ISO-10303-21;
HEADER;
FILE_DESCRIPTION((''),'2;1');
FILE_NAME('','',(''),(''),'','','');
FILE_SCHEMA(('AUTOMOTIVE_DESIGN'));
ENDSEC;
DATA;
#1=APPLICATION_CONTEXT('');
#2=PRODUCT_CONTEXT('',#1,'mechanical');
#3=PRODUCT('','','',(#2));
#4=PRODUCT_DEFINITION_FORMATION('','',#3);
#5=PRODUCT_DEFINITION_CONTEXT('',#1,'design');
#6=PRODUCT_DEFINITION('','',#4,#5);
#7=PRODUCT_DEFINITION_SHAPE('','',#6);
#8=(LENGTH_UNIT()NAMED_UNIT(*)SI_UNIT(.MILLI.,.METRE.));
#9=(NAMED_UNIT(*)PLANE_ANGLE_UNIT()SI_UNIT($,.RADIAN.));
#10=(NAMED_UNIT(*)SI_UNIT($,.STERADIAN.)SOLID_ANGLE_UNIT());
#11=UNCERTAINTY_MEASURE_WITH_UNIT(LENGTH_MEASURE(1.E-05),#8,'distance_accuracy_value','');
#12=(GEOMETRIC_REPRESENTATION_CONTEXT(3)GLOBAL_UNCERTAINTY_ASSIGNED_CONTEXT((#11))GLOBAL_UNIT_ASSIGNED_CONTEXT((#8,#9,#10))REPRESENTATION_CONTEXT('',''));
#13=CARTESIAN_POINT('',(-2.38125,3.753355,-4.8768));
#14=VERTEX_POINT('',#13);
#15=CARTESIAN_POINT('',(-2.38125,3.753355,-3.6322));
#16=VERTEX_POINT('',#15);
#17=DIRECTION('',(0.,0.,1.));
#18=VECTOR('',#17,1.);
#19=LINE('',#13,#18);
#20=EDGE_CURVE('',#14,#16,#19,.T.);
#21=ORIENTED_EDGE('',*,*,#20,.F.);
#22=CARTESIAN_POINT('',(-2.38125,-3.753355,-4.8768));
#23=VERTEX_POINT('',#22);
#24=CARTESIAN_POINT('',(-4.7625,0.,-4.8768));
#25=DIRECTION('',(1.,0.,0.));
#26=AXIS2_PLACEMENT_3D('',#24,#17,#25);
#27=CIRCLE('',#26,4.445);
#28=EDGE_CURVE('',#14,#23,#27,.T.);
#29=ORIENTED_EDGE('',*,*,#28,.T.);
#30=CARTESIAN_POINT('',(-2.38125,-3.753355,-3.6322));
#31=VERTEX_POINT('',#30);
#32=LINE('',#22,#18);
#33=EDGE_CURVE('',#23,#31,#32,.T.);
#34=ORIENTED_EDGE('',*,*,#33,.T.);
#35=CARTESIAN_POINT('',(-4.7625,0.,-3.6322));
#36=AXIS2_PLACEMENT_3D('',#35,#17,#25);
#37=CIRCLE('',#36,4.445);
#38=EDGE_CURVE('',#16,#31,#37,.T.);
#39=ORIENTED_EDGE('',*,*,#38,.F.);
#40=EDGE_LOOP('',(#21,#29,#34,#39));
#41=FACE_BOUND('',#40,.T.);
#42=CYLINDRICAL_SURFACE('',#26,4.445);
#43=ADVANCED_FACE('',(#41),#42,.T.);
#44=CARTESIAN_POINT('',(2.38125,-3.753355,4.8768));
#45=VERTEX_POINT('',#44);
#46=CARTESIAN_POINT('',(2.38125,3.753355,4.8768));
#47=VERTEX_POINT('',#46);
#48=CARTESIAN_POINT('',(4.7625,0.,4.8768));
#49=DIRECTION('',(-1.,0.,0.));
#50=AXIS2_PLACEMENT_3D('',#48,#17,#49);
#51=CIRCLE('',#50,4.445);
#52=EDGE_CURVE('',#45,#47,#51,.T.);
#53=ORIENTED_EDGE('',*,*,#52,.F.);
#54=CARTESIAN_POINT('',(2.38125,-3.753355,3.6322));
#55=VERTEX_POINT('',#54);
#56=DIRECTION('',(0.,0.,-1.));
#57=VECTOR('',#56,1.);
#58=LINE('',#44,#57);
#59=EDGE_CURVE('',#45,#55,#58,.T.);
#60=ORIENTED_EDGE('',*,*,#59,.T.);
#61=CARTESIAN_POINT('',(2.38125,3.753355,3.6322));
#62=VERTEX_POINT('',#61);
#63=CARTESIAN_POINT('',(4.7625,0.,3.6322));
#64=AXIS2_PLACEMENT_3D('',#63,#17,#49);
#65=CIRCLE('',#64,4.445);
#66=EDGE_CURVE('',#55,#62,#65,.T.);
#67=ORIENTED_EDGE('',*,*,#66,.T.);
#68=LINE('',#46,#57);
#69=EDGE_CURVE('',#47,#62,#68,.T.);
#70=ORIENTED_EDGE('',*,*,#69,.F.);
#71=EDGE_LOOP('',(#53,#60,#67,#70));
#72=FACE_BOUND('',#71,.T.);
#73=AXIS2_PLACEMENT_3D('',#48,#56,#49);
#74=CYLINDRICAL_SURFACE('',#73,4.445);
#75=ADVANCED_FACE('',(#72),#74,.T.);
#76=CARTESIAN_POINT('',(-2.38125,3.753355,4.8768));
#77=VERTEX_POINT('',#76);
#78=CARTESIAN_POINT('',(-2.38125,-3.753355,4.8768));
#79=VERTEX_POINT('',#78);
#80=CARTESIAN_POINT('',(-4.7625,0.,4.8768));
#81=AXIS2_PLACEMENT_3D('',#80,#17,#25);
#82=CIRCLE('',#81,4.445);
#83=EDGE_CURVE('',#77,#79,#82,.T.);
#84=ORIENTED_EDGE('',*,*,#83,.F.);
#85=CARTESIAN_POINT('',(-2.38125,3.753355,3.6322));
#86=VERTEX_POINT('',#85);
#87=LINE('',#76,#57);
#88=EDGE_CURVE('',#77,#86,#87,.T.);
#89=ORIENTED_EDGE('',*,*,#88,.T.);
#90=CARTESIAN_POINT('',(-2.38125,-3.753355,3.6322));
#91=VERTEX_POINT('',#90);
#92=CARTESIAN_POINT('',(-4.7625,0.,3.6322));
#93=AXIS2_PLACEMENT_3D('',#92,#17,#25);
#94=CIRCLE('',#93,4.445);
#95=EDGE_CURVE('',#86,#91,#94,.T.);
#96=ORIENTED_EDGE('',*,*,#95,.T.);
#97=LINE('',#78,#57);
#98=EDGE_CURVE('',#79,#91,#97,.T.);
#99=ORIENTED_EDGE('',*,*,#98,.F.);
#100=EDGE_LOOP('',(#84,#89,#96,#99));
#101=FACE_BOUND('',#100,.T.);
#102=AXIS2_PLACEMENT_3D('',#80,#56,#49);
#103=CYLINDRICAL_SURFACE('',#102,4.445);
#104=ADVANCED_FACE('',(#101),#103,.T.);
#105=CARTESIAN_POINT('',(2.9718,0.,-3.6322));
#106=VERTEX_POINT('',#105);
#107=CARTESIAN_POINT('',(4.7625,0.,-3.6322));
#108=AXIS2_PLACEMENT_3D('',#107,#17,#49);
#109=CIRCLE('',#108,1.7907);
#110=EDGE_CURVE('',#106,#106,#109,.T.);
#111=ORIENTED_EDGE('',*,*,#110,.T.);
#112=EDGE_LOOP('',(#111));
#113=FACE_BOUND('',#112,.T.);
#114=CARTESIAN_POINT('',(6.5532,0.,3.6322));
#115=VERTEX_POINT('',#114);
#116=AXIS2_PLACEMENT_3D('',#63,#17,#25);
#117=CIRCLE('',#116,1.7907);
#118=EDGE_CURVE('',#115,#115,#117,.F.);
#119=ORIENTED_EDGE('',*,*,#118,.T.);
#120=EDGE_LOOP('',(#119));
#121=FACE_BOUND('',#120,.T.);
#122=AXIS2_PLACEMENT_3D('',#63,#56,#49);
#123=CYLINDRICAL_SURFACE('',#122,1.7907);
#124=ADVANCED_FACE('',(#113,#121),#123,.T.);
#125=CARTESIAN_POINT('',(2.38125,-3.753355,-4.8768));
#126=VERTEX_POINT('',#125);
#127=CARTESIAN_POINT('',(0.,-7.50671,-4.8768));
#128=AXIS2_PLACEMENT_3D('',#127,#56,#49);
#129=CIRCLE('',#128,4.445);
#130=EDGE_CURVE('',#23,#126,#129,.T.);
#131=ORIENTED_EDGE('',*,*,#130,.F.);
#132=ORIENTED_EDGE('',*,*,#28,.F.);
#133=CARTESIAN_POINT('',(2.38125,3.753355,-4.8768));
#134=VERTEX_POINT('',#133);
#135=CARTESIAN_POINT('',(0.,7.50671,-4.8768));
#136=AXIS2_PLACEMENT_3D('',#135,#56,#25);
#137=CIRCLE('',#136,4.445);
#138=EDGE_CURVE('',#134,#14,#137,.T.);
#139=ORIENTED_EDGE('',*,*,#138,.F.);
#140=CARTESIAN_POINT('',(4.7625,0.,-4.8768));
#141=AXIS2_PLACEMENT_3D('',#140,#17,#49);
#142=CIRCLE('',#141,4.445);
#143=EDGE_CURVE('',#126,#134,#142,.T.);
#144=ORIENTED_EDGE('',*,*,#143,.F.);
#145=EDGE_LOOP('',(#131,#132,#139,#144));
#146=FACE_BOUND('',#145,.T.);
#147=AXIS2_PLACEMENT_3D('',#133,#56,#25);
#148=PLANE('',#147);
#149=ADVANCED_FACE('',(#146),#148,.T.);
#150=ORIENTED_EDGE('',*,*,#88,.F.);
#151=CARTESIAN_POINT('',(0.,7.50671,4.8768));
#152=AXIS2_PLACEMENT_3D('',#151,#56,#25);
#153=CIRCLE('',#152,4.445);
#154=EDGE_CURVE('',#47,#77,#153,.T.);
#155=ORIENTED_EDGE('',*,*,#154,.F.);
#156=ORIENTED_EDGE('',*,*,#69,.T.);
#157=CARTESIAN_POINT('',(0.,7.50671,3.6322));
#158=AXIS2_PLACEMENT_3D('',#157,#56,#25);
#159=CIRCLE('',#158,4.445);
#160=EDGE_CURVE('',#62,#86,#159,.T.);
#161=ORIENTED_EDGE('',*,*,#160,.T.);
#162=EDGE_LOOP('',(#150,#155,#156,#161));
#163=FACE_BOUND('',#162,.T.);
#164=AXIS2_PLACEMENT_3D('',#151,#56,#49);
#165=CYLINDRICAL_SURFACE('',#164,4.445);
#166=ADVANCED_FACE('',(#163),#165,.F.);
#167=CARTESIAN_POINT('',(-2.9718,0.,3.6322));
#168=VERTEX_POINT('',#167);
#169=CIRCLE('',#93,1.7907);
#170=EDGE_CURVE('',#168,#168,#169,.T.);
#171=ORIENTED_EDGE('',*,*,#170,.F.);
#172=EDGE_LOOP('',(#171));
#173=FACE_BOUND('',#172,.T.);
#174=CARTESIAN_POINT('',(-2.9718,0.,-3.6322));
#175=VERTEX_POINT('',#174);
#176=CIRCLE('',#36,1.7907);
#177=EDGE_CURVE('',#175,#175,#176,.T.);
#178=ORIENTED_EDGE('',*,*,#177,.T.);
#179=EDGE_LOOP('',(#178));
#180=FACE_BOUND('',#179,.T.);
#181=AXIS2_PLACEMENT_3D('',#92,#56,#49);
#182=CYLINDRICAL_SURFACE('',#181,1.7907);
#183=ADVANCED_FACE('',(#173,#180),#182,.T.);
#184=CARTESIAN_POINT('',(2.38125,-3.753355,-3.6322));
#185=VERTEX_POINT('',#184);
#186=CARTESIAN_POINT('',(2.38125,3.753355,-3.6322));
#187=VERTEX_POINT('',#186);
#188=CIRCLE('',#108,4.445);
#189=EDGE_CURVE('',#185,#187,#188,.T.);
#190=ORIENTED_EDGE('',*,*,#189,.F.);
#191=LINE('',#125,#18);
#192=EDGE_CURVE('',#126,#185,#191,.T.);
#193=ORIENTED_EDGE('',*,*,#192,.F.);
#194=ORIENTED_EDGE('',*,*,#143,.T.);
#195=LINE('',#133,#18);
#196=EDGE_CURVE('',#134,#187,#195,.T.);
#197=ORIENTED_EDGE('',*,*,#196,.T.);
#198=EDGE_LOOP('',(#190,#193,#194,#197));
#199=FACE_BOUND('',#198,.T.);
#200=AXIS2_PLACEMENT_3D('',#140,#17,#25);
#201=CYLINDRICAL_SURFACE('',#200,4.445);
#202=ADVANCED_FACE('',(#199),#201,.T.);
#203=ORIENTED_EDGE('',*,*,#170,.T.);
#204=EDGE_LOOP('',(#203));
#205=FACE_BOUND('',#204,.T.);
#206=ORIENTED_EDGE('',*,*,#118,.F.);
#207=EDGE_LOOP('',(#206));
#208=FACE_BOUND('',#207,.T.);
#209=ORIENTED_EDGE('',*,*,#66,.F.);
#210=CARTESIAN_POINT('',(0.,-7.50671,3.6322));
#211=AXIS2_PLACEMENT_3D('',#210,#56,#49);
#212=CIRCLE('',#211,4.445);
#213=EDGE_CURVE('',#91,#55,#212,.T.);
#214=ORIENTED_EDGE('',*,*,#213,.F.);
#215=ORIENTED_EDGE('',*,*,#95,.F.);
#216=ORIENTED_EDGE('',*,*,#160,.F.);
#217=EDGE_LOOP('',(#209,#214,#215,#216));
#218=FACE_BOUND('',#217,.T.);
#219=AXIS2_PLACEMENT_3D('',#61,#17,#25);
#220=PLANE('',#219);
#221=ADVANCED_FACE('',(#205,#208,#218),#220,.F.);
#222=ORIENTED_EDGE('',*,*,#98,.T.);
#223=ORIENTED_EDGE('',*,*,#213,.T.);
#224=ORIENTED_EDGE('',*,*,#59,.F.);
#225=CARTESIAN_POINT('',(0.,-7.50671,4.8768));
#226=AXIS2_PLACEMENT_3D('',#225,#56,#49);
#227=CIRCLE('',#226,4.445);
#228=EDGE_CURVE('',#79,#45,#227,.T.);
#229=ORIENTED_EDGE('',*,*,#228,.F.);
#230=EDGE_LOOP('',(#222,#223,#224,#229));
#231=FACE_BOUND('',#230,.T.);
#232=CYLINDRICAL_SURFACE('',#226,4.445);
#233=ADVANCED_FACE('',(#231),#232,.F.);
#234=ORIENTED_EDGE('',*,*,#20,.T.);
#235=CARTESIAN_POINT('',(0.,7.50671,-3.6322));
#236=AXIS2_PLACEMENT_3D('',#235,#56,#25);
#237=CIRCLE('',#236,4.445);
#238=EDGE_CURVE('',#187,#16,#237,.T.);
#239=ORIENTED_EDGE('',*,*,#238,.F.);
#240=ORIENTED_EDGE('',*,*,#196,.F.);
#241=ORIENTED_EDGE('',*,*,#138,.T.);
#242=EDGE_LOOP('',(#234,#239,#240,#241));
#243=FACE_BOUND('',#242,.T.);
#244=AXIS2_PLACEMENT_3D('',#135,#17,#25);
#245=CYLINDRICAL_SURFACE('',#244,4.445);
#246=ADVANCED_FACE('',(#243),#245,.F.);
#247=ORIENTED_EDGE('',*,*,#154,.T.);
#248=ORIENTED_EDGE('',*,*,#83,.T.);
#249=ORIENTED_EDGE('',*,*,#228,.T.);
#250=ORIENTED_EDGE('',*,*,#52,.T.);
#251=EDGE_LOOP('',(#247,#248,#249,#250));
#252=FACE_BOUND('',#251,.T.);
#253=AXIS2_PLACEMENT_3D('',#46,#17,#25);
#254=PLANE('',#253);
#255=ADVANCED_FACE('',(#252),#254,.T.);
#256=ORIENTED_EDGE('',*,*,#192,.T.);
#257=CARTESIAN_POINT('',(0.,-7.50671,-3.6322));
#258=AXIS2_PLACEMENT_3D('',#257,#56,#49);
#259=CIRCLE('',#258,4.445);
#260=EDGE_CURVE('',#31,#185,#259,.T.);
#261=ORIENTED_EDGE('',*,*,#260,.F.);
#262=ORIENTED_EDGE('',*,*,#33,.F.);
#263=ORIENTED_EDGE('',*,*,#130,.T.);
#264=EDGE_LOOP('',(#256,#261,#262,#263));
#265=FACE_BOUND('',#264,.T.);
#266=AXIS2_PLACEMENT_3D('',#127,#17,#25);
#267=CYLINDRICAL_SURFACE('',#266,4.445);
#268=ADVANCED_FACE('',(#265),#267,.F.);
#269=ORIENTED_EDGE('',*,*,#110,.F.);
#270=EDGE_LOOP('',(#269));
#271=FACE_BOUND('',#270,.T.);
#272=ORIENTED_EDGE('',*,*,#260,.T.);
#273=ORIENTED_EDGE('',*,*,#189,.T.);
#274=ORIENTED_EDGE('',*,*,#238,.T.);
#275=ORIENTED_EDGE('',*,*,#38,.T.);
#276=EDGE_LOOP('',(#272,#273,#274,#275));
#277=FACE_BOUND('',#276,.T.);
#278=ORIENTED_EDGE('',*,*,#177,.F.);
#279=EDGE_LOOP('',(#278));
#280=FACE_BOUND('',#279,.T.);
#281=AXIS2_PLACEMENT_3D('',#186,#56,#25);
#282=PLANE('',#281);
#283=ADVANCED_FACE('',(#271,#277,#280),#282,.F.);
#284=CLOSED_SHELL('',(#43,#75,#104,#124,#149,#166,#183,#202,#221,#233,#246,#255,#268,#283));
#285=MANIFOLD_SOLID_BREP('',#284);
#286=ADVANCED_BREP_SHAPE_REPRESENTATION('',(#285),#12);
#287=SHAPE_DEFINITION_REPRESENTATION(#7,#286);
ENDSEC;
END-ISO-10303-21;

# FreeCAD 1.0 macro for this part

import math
import FreeCAD as App
import Part
import Sketcher
Q = App.Units.Quantity

doc = App.newDocument("Part")
body = doc.addObject("PartDesign::Body", "Body")

sketch1 = body.newObject("Sketcher::SketchObject", "Sketch")
sketch1.AttachmentSupport = (doc.getObject("XY_Plane"), [""])
sketch1.MapMode = "FlatFace"
sketch1.addGeometry(Part.Circle(App.Vector(-4.8, 0, 0), App.Vector(0, 0, 1), 1.8), False)
sketch1.addConstraint(Sketcher.Constraint("PointOnObject", 0, 3, -1))
sketch1.addConstraint(Sketcher.Constraint("Diameter", 0, Q("0.141 in")))
sketch1.addConstraint(Sketcher.Constraint("DistanceX", 0, 3, -1, 1, Q("0.1875 in")))
pad1 = body.newObject("PartDesign::Pad", "Pad")
pad1.Profile = sketch1
pad1.Length = Q("0.286 in")
pad1.Midplane = True
body2 = doc.addObject("PartDesign::Body", "Body001")

sketch2 = body2.newObject("Sketcher::SketchObject", "Sketch001")
sketch2.AttachmentSupport = (doc.getObject("XY_Plane001"), [""])
sketch2.MapMode = "FlatFace"
sketch2.addGeometry(Part.Circle(App.Vector(4.8, 0, 0), App.Vector(0, 0, 1), 1.8), False)
sketch2.addConstraint(Sketcher.Constraint("PointOnObject", 0, 3, -1))
sketch2.addConstraint(Sketcher.Constraint("Diameter", 0, Q("0.141 in")))
sketch2.addConstraint(Sketcher.Constraint("DistanceX", -1, 1, 0, 3, Q("0.1875 in")))
pad2 = body2.newObject("PartDesign::Pad", "Pad001")
pad2.Profile = sketch2
pad2.Length = Q("0.286 in")
pad2.Midplane = True
body.AllowCompound = True
doc.recompute()

boolean = body.newObject("PartDesign::Boolean", "Boolean")
boolean.Type = "Fuse"
boolean.addObjects([body2])

sketch3 = body.newObject("Sketcher::SketchObject", "Sketch002")
sketch3.AttachmentSupport = (doc.getObject("XY_Plane"), [""])
sketch3.MapMode = "FlatFace"
sketch3.AttachmentOffset = App.Placement(App.Vector(0, 0, 0.143 * 25.4), App.Rotation())
sketch3.addGeometry(Part.ArcOfCircle(Part.Circle(App.Vector(-4.8, 0, 0), App.Vector(0, 0, 1), 4.4), math.radians(58), math.radians(302)), False)
sketch3.addGeometry(Part.ArcOfCircle(Part.Circle(App.Vector(0, -7.5, 0), App.Vector(0, 0, 1), 4.4), math.radians(58), math.radians(122)), False)
sketch3.addGeometry(Part.ArcOfCircle(Part.Circle(App.Vector(4.8, 0, 0), App.Vector(0, 0, 1), 4.4), math.radians(-122), math.radians(122)), False)
sketch3.addGeometry(Part.ArcOfCircle(Part.Circle(App.Vector(0, 7.5, 0), App.Vector(0, 0, 1), 4.4), math.radians(-122), math.radians(-58)), False)
sketch3.addConstraint(Sketcher.Constraint("Tangent", 0, 2, 1, 2))
sketch3.addConstraint(Sketcher.Constraint("Tangent", 1, 1, 2, 1))
sketch3.addConstraint(Sketcher.Constraint("Tangent", 2, 2, 3, 2))
sketch3.addConstraint(Sketcher.Constraint("Tangent", 3, 1, 0, 1))
sketch3.addConstraint(Sketcher.Constraint("Equal", 0, 1))
sketch3.addConstraint(Sketcher.Constraint("Equal", 1, 2))
sketch3.addConstraint(Sketcher.Constraint("Equal", 2, 3))
sketch3.addConstraint(Sketcher.Constraint("Symmetric", 0, 3, 2, 3, -1, 1))
sketch3.addConstraint(Sketcher.Constraint("PointOnObject", 0, 3, -1))
sketch3.addConstraint(Sketcher.Constraint("Radius", 0, Q("0.175 in")))
sketch3.addConstraint(Sketcher.Constraint("DistanceX", 0, 3, -1, 1, Q("0.1875 in")))
pad3 = body.newObject("PartDesign::Pad", "Pad002")
pad3.Profile = sketch3
pad3.Length = Q("0.049 in")
doc.recompute()

mirrored = body.newObject("PartDesign::Mirrored", "Mirrored")
mirrored.Originals = [pad3]
mirrored.MirrorPlane = (doc.getObject("XY_Plane"), [""])
body.Tip = mirrored

doc.recompute()
